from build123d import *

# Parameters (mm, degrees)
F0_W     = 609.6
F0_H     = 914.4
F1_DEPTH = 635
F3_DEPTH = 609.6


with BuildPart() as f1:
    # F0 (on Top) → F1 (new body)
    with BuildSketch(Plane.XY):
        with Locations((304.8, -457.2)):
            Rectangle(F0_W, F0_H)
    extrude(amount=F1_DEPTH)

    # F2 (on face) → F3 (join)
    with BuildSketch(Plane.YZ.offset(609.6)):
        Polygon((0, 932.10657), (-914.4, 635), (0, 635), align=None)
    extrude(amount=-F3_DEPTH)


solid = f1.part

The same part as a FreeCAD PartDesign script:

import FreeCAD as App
import Part
import Sketcher
from FreeCAD import Vector
Q = App.Units.Quantity


def add_polygon(sketch, points):
    """Adds a closed chain of lines whose ends are joined by coincident constraints."""
    first, n = sketch.GeometryCount, len(points)
    for a, b in zip(points, points[1:] + points[:1]):
        sketch.addGeometry(Part.LineSegment(App.Vector(*a, 0), App.Vector(*b, 0)), False)
    for i in range(n):
        sketch.addConstraint(Sketcher.Constraint("Coincident", first + i, 2, first + (i + 1) % n, 1))

doc = App.newDocument("Part")
body = doc.addObject("PartDesign::Body", "Body")

sketch1 = body.newObject("Sketcher::SketchObject", "Sketch")
sketch1.AttachmentSupport = (doc.getObject("XY_Plane"), [""])
sketch1.MapMode = "FlatFace"
add_polygon(sketch1, [(0, 0), (0, -914.4), (609.6, -914.4), (609.6, 0)])
sketch1.addConstraint([
    Sketcher.Constraint("Vertical", 0),
    Sketcher.Constraint("Horizontal", 1),
    Sketcher.Constraint("Vertical", 2),
    Sketcher.Constraint("Horizontal", 3),
    Sketcher.Constraint("Coincident", 3, 2, -1, 1),
    Sketcher.Constraint("DistanceX", 1, 1, 1, 2, Q("24 in")),
    Sketcher.Constraint("DistanceY", 0, 2, 0, 1, Q("36 in")),
])
pad1 = body.newObject("PartDesign::Pad", "Pad")
pad1.Profile = sketch1
pad1.Length = Q("25 in")

sketch2 = body.newObject("Sketcher::SketchObject", "Sketch001")
sketch2.AttachmentSupport = (doc.getObject("YZ_Plane"), [""])
sketch2.MapMode = "FlatFace"
sketch2.AttachmentOffset = App.Placement(Vector(0, 0, 24 * 25.4), App.Rotation())
add_polygon(sketch2, [(0, 932.10657), (-914.4, 635), (0, 635)])
sketch2.addConstraint([
    Sketcher.Constraint("Horizontal", 1),
    Sketcher.Constraint("Vertical", 2),
    Sketcher.Constraint("PointOnObject", 1, 2, -2),
    Sketcher.Constraint("DistanceX", 1, 1, 1, 2, Q("36 in")),
    Sketcher.Constraint("DistanceY", -1, 1, 0, 2, Q("25 in")),
    Sketcher.Constraint("Angle", 0, Q("-162 deg")),
])
pad2 = body.newObject("PartDesign::Pad", "Pad001")
pad2.Profile = sketch2
pad2.Length = Q("24 in")
pad2.Reversed = True

doc.recompute()
